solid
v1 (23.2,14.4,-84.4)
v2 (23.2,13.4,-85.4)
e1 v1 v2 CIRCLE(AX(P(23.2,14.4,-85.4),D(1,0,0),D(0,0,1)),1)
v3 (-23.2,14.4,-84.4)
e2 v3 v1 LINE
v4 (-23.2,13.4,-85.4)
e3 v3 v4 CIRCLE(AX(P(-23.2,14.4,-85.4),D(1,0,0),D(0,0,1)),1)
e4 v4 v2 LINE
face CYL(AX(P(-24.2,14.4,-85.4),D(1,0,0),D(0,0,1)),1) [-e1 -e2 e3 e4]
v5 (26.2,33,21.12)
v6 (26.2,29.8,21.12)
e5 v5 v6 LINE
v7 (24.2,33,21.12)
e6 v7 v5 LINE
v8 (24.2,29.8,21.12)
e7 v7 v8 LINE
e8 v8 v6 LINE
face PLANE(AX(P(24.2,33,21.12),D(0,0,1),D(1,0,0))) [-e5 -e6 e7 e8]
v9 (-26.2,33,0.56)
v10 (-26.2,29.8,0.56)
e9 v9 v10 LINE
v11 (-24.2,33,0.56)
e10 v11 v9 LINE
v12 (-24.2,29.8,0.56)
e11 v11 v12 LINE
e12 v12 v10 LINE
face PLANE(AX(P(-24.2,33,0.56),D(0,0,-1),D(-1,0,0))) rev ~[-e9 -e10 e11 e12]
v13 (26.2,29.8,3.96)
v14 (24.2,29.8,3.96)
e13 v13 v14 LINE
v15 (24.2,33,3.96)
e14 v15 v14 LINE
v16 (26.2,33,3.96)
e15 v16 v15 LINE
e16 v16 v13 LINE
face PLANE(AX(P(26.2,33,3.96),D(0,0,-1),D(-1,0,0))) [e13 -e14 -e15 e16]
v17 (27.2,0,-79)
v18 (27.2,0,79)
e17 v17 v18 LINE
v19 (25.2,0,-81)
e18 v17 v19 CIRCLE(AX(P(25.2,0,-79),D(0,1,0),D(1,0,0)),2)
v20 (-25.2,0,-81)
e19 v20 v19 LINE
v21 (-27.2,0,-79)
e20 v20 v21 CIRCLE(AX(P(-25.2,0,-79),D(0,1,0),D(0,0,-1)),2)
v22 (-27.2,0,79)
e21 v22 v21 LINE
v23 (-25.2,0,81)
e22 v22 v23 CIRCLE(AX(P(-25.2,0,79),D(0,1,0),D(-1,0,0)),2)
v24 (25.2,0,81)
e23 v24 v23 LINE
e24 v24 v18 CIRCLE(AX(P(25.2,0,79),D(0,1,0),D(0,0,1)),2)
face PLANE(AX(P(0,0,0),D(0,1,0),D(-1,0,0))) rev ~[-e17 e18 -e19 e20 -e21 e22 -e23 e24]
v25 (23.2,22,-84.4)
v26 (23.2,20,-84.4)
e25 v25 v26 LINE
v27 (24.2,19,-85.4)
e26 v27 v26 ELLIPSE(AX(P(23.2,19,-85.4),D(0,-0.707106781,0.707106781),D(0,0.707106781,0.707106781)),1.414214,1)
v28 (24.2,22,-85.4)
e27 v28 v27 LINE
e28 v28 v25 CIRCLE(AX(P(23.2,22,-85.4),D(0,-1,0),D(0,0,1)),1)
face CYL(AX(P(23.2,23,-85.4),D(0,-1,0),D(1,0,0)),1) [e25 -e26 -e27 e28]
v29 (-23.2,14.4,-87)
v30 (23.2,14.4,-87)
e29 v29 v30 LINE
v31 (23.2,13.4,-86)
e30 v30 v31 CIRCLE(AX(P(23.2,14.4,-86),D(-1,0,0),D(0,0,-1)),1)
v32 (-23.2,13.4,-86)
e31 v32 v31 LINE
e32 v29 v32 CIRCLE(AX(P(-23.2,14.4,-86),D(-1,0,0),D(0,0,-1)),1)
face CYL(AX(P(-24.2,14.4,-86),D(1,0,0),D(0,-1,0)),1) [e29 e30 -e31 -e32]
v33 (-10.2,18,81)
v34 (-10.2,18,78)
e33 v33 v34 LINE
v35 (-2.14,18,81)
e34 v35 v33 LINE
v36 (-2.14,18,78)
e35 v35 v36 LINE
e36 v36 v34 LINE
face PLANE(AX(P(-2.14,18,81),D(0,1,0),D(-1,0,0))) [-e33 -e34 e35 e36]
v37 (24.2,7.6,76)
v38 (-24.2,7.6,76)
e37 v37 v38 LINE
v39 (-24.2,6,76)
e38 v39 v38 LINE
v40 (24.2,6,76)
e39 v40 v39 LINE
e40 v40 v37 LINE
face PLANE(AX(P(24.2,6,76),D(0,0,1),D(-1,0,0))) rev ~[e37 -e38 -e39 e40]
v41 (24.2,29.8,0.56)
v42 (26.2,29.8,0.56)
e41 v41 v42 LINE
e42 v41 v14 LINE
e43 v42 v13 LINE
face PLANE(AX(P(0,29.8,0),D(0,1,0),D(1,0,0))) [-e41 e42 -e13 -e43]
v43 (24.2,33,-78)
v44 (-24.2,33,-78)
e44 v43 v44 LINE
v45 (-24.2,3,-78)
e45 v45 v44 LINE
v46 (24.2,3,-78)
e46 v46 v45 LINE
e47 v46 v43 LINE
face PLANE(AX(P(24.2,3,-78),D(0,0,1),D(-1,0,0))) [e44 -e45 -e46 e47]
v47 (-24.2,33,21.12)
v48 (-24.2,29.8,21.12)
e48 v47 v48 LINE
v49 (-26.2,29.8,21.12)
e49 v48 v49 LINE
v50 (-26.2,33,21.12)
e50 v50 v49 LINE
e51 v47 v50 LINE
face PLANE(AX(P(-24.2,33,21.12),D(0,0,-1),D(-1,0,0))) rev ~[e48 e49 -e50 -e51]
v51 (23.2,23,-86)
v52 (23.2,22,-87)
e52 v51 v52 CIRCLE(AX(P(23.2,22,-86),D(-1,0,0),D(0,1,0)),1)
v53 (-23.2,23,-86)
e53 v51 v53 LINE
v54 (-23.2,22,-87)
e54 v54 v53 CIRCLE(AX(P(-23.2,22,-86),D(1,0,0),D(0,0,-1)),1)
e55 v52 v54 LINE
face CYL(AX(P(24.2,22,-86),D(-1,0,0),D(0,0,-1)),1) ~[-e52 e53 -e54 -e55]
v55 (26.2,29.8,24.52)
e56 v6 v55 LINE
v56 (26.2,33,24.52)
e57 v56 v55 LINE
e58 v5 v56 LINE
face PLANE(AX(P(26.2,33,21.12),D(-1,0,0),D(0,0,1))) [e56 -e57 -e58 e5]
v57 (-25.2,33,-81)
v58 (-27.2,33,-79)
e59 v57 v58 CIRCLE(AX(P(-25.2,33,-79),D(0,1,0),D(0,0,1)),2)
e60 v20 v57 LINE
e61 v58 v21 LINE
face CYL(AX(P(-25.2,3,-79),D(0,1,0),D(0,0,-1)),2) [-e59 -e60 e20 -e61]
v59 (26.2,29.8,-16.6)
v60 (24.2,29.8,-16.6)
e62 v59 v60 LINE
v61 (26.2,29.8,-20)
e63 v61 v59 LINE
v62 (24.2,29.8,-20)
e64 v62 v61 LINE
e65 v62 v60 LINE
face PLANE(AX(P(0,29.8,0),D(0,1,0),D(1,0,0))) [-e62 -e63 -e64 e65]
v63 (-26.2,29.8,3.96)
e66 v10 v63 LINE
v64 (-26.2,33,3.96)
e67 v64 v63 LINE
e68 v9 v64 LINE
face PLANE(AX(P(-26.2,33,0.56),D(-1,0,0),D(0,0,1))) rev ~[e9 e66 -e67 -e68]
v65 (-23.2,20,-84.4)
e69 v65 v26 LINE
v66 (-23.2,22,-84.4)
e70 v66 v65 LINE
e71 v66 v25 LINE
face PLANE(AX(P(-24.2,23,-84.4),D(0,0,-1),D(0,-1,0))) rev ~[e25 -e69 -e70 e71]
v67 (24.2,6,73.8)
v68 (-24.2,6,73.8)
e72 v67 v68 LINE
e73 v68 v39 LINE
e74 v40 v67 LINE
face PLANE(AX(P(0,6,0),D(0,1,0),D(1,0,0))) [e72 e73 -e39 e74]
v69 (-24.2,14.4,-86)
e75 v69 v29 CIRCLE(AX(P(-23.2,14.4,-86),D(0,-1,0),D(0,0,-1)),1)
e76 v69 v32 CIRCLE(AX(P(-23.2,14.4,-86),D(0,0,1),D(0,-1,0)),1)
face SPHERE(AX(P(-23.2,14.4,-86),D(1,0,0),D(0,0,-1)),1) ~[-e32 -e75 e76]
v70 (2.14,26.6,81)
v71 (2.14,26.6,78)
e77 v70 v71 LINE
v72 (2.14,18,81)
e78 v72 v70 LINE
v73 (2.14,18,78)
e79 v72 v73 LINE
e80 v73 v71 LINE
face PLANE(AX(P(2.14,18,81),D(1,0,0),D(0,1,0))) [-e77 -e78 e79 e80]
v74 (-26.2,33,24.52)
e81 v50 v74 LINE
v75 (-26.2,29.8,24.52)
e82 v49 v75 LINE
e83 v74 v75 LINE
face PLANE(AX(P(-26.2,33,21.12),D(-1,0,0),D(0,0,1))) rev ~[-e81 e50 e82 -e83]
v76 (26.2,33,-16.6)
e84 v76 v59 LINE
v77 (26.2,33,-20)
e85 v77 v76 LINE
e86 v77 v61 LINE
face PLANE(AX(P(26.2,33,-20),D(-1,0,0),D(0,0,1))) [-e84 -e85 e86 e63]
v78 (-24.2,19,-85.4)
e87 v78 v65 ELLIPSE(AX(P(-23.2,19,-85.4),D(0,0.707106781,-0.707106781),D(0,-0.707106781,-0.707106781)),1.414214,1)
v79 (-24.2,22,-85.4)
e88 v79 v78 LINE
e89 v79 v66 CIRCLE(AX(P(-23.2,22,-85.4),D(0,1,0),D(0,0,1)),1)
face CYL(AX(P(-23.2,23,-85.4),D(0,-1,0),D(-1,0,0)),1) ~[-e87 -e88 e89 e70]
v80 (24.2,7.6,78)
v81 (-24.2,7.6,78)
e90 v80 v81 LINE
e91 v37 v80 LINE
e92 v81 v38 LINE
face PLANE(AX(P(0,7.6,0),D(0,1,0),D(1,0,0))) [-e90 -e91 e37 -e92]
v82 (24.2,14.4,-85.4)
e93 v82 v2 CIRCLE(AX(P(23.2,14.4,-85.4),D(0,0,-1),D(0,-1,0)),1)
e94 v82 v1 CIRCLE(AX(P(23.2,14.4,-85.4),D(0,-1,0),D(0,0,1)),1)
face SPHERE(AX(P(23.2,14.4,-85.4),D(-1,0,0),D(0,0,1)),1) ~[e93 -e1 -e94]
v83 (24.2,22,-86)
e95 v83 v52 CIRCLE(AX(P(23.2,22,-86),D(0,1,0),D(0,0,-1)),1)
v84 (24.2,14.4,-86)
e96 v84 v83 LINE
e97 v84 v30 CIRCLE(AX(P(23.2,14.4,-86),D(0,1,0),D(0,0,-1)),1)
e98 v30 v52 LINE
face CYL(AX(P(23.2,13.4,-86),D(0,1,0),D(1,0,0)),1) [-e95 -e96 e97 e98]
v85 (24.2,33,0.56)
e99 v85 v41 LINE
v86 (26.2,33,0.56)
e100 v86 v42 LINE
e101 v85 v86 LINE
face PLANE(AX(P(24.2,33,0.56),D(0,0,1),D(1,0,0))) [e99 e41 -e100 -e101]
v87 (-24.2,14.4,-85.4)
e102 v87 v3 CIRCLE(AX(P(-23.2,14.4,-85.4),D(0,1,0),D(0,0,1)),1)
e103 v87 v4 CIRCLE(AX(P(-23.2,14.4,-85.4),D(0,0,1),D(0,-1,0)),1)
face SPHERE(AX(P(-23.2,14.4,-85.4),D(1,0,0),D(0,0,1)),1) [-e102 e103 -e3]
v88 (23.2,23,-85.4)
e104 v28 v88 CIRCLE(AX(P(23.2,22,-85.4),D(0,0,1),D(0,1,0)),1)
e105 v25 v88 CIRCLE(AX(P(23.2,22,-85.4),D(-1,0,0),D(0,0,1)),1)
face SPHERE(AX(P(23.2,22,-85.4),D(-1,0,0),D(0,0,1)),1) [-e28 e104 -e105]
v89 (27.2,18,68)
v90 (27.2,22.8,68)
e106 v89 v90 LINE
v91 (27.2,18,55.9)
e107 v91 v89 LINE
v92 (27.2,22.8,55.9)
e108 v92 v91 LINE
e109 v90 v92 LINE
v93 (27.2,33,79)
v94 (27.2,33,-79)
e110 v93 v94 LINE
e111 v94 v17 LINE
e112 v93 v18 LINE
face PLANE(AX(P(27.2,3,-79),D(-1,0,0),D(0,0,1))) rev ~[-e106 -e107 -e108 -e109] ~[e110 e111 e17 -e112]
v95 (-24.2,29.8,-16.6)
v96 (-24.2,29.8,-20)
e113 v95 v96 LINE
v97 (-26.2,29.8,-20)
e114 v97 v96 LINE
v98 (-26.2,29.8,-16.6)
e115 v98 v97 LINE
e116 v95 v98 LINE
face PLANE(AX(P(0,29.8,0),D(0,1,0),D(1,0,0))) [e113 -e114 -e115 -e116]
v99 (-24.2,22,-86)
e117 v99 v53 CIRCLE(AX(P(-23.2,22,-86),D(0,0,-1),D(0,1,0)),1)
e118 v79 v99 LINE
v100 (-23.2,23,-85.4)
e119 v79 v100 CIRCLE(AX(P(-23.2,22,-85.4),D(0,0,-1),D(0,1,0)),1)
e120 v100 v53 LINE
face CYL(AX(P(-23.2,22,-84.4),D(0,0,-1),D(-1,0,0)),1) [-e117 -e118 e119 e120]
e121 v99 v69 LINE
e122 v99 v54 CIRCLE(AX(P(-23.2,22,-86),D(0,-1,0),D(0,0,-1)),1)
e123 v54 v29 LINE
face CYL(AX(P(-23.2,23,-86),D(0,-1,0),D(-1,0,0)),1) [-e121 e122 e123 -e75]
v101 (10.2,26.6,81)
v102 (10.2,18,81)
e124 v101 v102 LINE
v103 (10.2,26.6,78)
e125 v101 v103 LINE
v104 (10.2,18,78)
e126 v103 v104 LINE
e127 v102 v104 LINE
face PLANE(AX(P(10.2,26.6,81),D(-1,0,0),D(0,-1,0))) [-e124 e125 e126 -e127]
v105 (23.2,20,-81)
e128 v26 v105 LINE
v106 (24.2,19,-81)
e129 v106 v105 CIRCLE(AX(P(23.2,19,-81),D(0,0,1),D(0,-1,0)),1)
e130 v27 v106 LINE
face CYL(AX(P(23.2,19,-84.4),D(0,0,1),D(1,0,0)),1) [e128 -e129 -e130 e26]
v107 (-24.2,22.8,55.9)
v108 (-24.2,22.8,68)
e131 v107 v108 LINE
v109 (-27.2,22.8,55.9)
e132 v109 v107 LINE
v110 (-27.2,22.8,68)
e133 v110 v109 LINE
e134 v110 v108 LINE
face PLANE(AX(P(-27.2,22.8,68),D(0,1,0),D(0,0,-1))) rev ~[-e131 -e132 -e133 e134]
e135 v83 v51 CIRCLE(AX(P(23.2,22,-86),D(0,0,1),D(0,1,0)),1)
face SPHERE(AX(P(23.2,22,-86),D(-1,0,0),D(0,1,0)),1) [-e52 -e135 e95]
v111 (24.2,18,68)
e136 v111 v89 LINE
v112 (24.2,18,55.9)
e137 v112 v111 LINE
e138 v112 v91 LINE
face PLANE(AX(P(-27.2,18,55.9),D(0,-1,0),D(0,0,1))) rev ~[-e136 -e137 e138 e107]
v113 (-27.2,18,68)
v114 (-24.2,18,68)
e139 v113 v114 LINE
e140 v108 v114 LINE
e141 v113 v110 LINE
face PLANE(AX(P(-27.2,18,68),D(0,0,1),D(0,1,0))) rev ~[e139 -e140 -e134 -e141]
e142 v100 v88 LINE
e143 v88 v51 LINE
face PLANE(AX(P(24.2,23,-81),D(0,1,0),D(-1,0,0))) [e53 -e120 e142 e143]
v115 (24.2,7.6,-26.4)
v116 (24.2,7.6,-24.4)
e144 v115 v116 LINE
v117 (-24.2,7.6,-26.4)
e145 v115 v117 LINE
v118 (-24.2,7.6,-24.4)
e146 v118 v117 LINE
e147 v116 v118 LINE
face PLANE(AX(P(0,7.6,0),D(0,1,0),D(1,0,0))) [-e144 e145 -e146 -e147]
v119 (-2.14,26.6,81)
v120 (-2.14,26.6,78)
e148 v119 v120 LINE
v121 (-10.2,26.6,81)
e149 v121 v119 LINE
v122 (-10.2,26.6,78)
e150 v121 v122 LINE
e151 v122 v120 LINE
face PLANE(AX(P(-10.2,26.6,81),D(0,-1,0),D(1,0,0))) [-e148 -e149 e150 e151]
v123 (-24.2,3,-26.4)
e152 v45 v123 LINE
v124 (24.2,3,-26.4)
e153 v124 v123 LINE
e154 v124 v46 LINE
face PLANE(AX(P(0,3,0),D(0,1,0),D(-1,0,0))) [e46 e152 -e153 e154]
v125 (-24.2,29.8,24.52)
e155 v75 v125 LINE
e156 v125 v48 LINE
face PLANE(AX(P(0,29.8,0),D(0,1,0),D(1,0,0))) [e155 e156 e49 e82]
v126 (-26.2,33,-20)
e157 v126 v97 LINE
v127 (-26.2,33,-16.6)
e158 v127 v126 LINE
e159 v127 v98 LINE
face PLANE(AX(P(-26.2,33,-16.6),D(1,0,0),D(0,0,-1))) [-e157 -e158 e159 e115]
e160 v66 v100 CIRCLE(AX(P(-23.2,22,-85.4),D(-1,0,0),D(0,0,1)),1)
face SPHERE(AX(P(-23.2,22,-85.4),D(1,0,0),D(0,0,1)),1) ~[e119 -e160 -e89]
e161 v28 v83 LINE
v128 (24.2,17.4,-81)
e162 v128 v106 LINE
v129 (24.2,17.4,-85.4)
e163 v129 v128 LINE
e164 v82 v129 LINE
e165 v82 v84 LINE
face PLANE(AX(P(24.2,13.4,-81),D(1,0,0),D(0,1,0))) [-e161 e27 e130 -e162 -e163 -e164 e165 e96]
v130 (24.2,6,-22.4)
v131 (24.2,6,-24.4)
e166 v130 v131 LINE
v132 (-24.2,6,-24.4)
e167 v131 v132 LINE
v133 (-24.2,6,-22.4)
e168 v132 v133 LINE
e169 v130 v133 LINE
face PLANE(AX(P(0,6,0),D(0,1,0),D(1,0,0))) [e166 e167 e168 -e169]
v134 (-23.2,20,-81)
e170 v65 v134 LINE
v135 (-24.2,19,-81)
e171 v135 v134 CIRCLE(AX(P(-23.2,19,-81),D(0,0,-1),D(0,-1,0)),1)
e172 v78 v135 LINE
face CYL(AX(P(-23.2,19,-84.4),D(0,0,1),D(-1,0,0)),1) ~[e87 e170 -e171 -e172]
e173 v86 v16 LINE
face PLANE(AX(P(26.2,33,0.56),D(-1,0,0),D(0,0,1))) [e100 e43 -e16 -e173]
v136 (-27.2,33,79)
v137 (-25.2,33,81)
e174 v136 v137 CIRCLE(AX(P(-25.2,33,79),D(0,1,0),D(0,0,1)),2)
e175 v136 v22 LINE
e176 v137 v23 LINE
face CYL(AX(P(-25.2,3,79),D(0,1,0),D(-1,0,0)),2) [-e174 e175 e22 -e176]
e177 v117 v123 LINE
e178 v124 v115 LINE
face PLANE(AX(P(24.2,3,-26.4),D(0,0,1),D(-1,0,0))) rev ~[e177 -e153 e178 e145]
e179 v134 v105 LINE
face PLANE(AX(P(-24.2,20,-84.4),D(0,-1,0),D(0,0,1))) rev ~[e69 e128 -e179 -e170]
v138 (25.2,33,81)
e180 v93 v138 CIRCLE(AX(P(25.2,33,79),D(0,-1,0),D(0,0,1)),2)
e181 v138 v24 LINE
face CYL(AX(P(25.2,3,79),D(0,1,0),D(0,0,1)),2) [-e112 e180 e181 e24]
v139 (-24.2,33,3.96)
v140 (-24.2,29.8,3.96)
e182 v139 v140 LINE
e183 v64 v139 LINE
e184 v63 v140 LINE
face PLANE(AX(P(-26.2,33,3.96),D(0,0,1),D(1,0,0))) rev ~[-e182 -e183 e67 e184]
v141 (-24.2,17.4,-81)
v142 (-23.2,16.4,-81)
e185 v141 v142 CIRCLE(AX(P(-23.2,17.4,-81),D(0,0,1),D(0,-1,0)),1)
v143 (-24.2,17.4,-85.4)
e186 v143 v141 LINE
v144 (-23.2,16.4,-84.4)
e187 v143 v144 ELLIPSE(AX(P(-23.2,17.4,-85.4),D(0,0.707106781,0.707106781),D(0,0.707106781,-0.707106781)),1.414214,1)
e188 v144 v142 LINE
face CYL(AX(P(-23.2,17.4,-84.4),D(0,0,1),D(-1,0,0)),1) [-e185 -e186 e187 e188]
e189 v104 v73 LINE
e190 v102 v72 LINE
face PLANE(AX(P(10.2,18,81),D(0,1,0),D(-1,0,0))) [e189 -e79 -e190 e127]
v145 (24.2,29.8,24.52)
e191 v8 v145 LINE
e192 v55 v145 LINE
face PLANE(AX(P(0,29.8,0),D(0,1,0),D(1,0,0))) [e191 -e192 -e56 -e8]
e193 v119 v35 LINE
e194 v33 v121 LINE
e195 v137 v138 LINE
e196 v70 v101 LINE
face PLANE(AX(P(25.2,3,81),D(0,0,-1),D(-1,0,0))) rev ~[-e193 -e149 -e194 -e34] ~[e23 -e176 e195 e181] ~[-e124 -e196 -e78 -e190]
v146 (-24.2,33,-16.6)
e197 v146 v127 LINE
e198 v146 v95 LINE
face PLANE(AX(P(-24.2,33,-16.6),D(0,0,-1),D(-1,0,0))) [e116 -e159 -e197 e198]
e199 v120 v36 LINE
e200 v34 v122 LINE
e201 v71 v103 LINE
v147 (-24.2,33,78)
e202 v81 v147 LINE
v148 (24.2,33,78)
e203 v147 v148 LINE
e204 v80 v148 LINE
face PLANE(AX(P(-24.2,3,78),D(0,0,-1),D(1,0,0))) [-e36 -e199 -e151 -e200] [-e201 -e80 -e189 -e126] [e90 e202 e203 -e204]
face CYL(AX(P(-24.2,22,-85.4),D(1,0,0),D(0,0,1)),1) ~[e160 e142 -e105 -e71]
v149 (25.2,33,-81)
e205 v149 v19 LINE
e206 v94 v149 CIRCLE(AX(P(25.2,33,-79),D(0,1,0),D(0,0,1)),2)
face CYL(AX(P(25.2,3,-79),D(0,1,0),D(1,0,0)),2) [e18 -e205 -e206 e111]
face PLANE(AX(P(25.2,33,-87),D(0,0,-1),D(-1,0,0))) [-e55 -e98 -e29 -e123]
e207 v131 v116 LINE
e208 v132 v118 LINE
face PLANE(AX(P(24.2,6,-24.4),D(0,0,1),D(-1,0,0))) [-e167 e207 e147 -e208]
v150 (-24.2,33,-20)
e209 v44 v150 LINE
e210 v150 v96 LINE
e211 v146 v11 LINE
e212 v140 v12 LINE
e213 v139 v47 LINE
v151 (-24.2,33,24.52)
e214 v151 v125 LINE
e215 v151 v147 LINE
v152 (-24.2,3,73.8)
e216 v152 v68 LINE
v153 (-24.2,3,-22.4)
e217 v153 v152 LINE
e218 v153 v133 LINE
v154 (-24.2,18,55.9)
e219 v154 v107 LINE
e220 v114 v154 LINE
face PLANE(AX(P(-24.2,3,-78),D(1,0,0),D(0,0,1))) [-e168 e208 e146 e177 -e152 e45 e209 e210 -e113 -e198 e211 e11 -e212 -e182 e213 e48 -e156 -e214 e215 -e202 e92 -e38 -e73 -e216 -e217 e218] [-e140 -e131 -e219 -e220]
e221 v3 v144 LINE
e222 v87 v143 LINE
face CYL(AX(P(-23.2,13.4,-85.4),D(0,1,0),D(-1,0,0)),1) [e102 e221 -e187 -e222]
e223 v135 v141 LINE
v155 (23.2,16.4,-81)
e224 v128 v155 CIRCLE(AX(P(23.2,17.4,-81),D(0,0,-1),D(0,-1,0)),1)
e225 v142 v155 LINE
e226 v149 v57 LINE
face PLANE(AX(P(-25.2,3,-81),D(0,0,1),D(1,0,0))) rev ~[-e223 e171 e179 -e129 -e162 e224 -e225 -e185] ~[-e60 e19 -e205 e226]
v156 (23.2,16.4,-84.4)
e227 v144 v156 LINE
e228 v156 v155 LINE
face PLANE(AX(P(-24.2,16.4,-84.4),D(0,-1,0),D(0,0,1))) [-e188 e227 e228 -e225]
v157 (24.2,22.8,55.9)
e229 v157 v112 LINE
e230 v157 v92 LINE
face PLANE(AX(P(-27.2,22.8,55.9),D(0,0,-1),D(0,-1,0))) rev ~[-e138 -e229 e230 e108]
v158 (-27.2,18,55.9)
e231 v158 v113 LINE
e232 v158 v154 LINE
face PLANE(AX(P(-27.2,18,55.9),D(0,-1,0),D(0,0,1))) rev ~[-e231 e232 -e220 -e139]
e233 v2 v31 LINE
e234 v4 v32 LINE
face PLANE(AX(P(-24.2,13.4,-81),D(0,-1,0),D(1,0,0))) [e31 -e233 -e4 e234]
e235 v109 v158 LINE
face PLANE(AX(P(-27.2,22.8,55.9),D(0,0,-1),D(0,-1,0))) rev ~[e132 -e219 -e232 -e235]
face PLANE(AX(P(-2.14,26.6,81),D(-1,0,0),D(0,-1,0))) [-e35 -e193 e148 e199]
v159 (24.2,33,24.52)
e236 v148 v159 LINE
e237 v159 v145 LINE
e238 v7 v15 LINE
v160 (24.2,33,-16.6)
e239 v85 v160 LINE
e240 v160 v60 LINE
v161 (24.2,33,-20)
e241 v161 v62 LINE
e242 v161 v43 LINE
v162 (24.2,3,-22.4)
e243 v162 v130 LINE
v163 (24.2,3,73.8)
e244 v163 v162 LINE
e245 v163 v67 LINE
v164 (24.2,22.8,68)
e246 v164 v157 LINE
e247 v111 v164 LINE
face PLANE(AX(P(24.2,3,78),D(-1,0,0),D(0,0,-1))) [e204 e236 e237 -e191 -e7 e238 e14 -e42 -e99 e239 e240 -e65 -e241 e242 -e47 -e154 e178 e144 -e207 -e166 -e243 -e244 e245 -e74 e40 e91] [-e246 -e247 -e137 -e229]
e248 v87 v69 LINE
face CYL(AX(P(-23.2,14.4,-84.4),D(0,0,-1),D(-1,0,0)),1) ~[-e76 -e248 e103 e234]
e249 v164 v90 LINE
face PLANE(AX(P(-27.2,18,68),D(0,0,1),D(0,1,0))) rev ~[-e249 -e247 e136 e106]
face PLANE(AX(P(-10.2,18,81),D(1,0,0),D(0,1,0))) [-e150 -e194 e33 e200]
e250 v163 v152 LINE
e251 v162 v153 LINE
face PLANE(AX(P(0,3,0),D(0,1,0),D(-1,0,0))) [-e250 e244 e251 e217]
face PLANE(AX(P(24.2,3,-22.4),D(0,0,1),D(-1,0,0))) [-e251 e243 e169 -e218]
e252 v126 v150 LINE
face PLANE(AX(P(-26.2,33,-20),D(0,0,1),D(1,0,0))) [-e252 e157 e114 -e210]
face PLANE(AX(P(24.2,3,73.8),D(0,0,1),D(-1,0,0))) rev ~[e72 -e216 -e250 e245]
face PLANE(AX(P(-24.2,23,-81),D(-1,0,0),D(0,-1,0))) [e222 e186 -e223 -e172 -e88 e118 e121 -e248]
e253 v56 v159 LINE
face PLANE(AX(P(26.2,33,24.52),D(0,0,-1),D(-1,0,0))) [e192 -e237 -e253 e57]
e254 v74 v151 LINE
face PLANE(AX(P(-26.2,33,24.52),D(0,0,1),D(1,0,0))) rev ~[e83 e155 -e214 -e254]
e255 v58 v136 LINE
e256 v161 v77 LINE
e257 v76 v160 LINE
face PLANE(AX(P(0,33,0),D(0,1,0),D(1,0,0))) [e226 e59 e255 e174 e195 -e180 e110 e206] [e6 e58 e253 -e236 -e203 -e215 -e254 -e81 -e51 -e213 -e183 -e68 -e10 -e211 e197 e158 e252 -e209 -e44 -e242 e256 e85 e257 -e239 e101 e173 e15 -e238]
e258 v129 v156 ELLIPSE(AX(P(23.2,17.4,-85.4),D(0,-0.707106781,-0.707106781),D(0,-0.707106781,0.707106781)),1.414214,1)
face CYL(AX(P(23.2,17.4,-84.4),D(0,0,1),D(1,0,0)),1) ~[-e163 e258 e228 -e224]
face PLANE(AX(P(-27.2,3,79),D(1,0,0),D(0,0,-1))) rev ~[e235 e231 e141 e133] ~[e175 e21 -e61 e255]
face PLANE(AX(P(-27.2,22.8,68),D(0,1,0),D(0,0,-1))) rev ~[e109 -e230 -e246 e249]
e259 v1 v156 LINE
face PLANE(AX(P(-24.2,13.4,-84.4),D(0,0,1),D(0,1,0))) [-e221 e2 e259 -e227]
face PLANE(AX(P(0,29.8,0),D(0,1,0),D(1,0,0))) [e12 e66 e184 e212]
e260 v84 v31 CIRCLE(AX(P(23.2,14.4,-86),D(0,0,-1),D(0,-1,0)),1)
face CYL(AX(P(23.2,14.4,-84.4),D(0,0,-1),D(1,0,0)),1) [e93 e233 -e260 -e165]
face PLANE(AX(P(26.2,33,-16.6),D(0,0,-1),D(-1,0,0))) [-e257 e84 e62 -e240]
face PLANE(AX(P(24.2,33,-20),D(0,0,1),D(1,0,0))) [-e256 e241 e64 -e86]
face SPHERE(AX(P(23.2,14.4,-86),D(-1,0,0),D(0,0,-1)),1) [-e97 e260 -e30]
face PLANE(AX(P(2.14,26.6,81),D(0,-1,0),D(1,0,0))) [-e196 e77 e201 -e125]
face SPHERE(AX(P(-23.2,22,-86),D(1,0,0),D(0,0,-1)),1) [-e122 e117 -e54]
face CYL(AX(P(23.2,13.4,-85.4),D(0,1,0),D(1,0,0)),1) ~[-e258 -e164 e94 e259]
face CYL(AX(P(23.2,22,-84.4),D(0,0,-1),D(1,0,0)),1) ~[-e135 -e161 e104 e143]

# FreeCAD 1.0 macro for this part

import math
import FreeCAD as App
import Part
import Sketcher

V = App.Vector
Q = App.Units.Quantity


def edges_at(feature, points):
    """Names of the edges that pass closest to the given points."""
    edges = feature.Shape.Edges
    near = lambda p: min(range(len(edges)), key=lambda i: edges[i].distToShape(Part.Vertex(*p))[0])
    return sorted({f"Edge{near(p) + 1}" for p in points})


def add_polygon(sketch, points):
    """Adds a closed chain of lines whose ends are joined by coincident constraints."""
    first, n = sketch.GeometryCount, len(points)
    for a, b in zip(points, points[1:] + points[:1]):
        sketch.addGeometry(Part.LineSegment(App.Vector(*a, 0), App.Vector(*b, 0)), False)
    for i in range(n):
        sketch.addConstraint(Sketcher.Constraint("Coincident", first + i, 2, first + (i + 1) % n, 1))

doc = App.newDocument("Part")
body = doc.addObject("PartDesign::Body", "Body")

sketch1 = doc.addObject("Sketcher::SketchObject", "Sketch")
body.addObject(sketch1)
sketch1.AttachmentSupport = (doc.XZ_Plane, [""])
sketch1.MapMode = "FlatFace"
add_polygon(sketch1, [(30, 84), (30, -84), (-30, -84), (-30, 84)])
sketch1.addConstraint(Sketcher.Constraint("Vertical", 0))
sketch1.addConstraint(Sketcher.Constraint("Horizontal", 1))
sketch1.addConstraint(Sketcher.Constraint("Vertical", 2))
sketch1.addConstraint(Sketcher.Constraint("Horizontal", 3))
sketch1.addConstraint(Sketcher.Constraint("Symmetric", 0, 2, 2, 2, -1, 1))
sketch1.addConstraint(Sketcher.Constraint("DistanceY", 0, 2, 0, 1, Q("168 mm")))
sketch1.addConstraint(Sketcher.Constraint("DistanceX", 1, 2, 1, 1, Q("60.4 mm")))
pad1 = doc.addObject("PartDesign::Pad", "Pad")
body.addObject(pad1)
pad1.Profile = sketch1
pad1.Length = 3
pad1.Reversed = True

sketch2 = doc.addObject("Sketcher::SketchObject", "Sketch001")
body.addObject(sketch2)
sketch2.AttachmentSupport = (doc.XZ_Plane, [""])
sketch2.MapMode = "FlatFace"
sketch2.AttachmentOffset = App.Placement(V(0, 0, -3), App.Rotation())
add_polygon(sketch2, [(27, 81), (27, -81), (-27, -81), (-27, 81)])
add_polygon(sketch2, [(-24, -78), (24, -78), (24, 78), (-24, 78)])
sketch2.addConstraint(Sketcher.Constraint("Vertical", 0))
sketch2.addConstraint(Sketcher.Constraint("Horizontal", 1))
sketch2.addConstraint(Sketcher.Constraint("Vertical", 2))
sketch2.addConstraint(Sketcher.Constraint("Horizontal", 3))
sketch2.addConstraint(Sketcher.Constraint("Horizontal", 4))
sketch2.addConstraint(Sketcher.Constraint("Vertical", 5))
sketch2.addConstraint(Sketcher.Constraint("Horizontal", 6))
sketch2.addConstraint(Sketcher.Constraint("Vertical", 7))
sketch2.addConstraint(Sketcher.Constraint("Symmetric", 0, 2, 2, 2, -1, 1))
sketch2.addConstraint(Sketcher.Constraint("Symmetric", 4, 2, 6, 2, -1, 1))
sketch2.addConstraint(Sketcher.Constraint("DistanceX", 4, 2, 0, 2, Q("3 mm")))
sketch2.addConstraint(Sketcher.Constraint("DistanceY", 0, 2, 4, 2, Q("3 mm")))
sketch2.addConstraint(Sketcher.Constraint("DistanceY", 0, 2, 0, 1, Q("162 mm")))
sketch2.addConstraint(Sketcher.Constraint("DistanceX", 1, 2, 1, 1, Q("54.4 mm")))
pad2 = doc.addObject("PartDesign::Pad", "Pad001")
body.addObject(pad2)
pad2.Profile = sketch2
pad2.Length = 30
pad2.Reversed = True
doc.recompute()

fillet = doc.addObject("PartDesign::Fillet", "Fillet")
body.addObject(fillet)
fillet.Base = (pad2, edges_at(pad2, [
    (27.2, 18, 81),
    (-27.2, 18, 81),
    (-30.2, 1.5, 84),
    (30.2, 1.5, 84),
    (27.2, 18, -81),
    (-27.2, 18, -81),
    (30.2, 1.5, -84),
    (-30.2, 1.5, -84),
]))
fillet.Radius = 2

sketch3 = doc.addObject("Sketcher::SketchObject", "Sketch002")
body.addObject(sketch3)
sketch3.AttachmentSupport = (doc.XZ_Plane, [""])
sketch3.MapMode = "FlatFace"
sketch3.AttachmentOffset = App.Placement(V(0, 0, -3), App.Rotation())
add_polygon(sketch3, [(24.2, -22.4), (24.2, -26.4), (-24.2, -26.4), (-24.2, -22.4)])
add_polygon(sketch3, [(24.2, 78), (24.2, 73.8), (-24.2, 73.8), (-24.2, 78)])
sketch3.addConstraint(Sketcher.Constraint("Vertical", 0))
sketch3.addConstraint(Sketcher.Constraint("Horizontal", 1))
sketch3.addConstraint(Sketcher.Constraint("Vertical", 2))
sketch3.addConstraint(Sketcher.Constraint("Horizontal", 3))
sketch3.addConstraint(Sketcher.Constraint("Vertical", 4))
sketch3.addConstraint(Sketcher.Constraint("Horizontal", 5))
sketch3.addConstraint(Sketcher.Constraint("Vertical", 6))
sketch3.addConstraint(Sketcher.Constraint("Horizontal", 7))
sketch3.addConstraint(Sketcher.Constraint("Vertical", 3, 2, 4, 2))
sketch3.addConstraint(Sketcher.Constraint("Vertical", 2, 2, 5, 2))
sketch3.addConstraint(Sketcher.Constraint("DistanceY", 0, 2, 0, 1, Q("4 mm")))
sketch3.addConstraint(Sketcher.Constraint("DistanceY", 4, 2, 4, 1, Q("4.2 mm")))
sketch3.addConstraint(Sketcher.Constraint("DistanceY", 3, 2, 4, 2, Q("96.2 mm")))
sketch3.addConstraint(Sketcher.Constraint("DistanceX", 1, 2, 1, 1, Q("48.4 mm")))
sketch3.addConstraint(Sketcher.Constraint("DistanceY", -1, 1, 6, 2, Q("78 mm")))
sketch3.addConstraint(Sketcher.Constraint("DistanceX", -1, 1, 0, 2, Q("24.2 mm")))
pad3 = doc.addObject("PartDesign::Pad", "Pad002")
body.addObject(pad3)
pad3.Profile = sketch3
pad3.Length = 3
pad3.Reversed = True

sketch4 = doc.addObject("Sketcher::SketchObject", "Sketch003")
body.addObject(sketch4)
sketch4.AttachmentSupport = (doc.XZ_Plane, [""])
sketch4.MapMode = "FlatFace"
sketch4.AttachmentOffset = App.Placement(V(0, 0, -6), App.Rotation())
add_polygon(sketch4, [(-24.2, -26.4), (-24.2, -24.4), (24.2, -24.4), (24.2, -26.4)])
add_polygon(sketch4, [(-24.2, 76), (-24.2, 78), (24.2, 78), (24.2, 76)])
sketch4.addConstraint(Sketcher.Constraint("Vertical", 0))
sketch4.addConstraint(Sketcher.Constraint("Horizontal", 1))
sketch4.addConstraint(Sketcher.Constraint("Vertical", 2))
sketch4.addConstraint(Sketcher.Constraint("Horizontal", 3))
sketch4.addConstraint(Sketcher.Constraint("Vertical", 4))
sketch4.addConstraint(Sketcher.Constraint("Horizontal", 5))
sketch4.addConstraint(Sketcher.Constraint("Vertical", 6))
sketch4.addConstraint(Sketcher.Constraint("Horizontal", 7))
sketch4.addConstraint(Sketcher.Constraint("Vertical", 3, 2, 4, 2))
sketch4.addConstraint(Sketcher.Constraint("Vertical", 2, 2, 5, 2))
sketch4.addConstraint(Sketcher.Constraint("Equal", 2, 4))
sketch4.addConstraint(Sketcher.Constraint("DistanceY", 0, 1, 0, 2, Q("2 mm")))
sketch4.addConstraint(Sketcher.Constraint("DistanceX", 1, 1, 1, 2, Q("48.4 mm")))
sketch4.addConstraint(Sketcher.Constraint("DistanceY", -1, 1, 4, 2, Q("78 mm")))
sketch4.addConstraint(Sketcher.Constraint("DistanceX", 0, 2, -1, 1, Q("24.2 mm")))
sketch4.addConstraint(Sketcher.Constraint("DistanceY", 0, 2, -1, 1, Q("24.4 mm")))
pad4 = doc.addObject("PartDesign::Pad", "Pad003")
body.addObject(pad4)
pad4.Profile = sketch4
pad4.Length = 1.6
pad4.Reversed = True

sketch5 = doc.addObject("Sketcher::SketchObject", "Sketch004")
body.addObject(sketch5)
sketch5.AttachmentSupport = (doc.XY_Plane, [""])
sketch5.MapMode = "FlatFace"
sketch5.AttachmentOffset = App.Placement(V(0, 0, 81), App.Rotation())
add_polygon(sketch5, [(-2, 27), (-10, 27), (-10, 18), (-2, 18)])
add_polygon(sketch5, [(10, 27), (2, 27), (2, 18), (10, 18)])
sketch5.addConstraint(Sketcher.Constraint("Horizontal", 0))
sketch5.addConstraint(Sketcher.Constraint("Vertical", 1))
sketch5.addConstraint(Sketcher.Constraint("Horizontal", 2))
sketch5.addConstraint(Sketcher.Constraint("Vertical", 3))
sketch5.addConstraint(Sketcher.Constraint("Horizontal", 4))
sketch5.addConstraint(Sketcher.Constraint("Vertical", 5))
sketch5.addConstraint(Sketcher.Constraint("Horizontal", 6))
sketch5.addConstraint(Sketcher.Constraint("Vertical", 7))
sketch5.addConstraint(Sketcher.Constraint("Symmetric", 3, 2, 4, 2, -2))
sketch5.addConstraint(Sketcher.Constraint("Symmetric", 1, 2, 6, 2, -2))
sketch5.addConstraint(Sketcher.Constraint("DistanceY", 1, 2, 1, 1, Q("8.6 mm")))
sketch5.addConstraint(Sketcher.Constraint("DistanceX", 0, 2, 0, 1, Q("8.06 mm")))
sketch5.addConstraint(Sketcher.Constraint("DistanceY", -1, 1, 1, 2, Q("18 mm")))
sketch5.addConstraint(Sketcher.Constraint("DistanceX", 0, 2, -1, 1, Q("10.2 mm")))
pocket1 = doc.addObject("PartDesign::Pocket", "Pocket")
body.addObject(pocket1)
pocket1.Profile = sketch5
pocket1.Length = 3

sketch6 = doc.addObject("Sketcher::SketchObject", "Sketch005")
body.addObject(sketch6)
sketch6.AttachmentSupport = (doc.XZ_Plane, [""])
sketch6.MapMode = "FlatFace"
sketch6.AttachmentOffset = App.Placement(V(0, 0, -3), App.Rotation())
sketch6.addGeometry(Part.LineSegment(V(28.2, -84, 0), V(-28.2, -84, 0)), False)
sketch6.addGeometry(Part.ArcOfCircle(Part.Circle(V(-28.2, -82, 0), V(0, 0, 1), 2), math.radians(180), math.radians(270)), False)
sketch6.addGeometry(Part.LineSegment(V(-30.2, -82, 0), V(-30.2, 82, 0)), False)
sketch6.addGeometry(Part.ArcOfCircle(Part.Circle(V(-28.2, 82, 0), V(0, 0, 1), 2), math.radians(90), math.radians(180)), False)
sketch6.addGeometry(Part.LineSegment(V(-28.2, 84, 0), V(28.2, 84, 0)), False)
sketch6.addGeometry(Part.ArcOfCircle(Part.Circle(V(28.2, 82, 0), V(0, 0, 1), 2), math.radians(0), math.radians(90)), False)
sketch6.addGeometry(Part.LineSegment(V(30.2, 82, 0), V(30.2, -82, 0)), False)
sketch6.addGeometry(Part.ArcOfCircle(Part.Circle(V(28.2, -82, 0), V(0, 0, 1), 2), math.radians(-90), math.radians(0)), False)
sketch6.addGeometry(Part.ArcOfCircle(Part.Circle(V(-25.2, -79, 0), V(0, 0, 1), 2), math.radians(180), math.radians(270)), False)
sketch6.addGeometry(Part.LineSegment(V(-25.2, -81, 0), V(25.2, -81, 0)), False)
sketch6.addGeometry(Part.ArcOfCircle(Part.Circle(V(25.2, -79, 0), V(0, 0, 1), 2), math.radians(-90), math.radians(0)), False)
sketch6.addGeometry(Part.LineSegment(V(27.2, -79, 0), V(27.2, 79, 0)), False)
sketch6.addGeometry(Part.ArcOfCircle(Part.Circle(V(25.2, 79, 0), V(0, 0, 1), 2), math.radians(0), math.radians(90)), False)
sketch6.addGeometry(Part.LineSegment(V(25.2, 81, 0), V(-25.2, 81, 0)), False)
sketch6.addGeometry(Part.ArcOfCircle(Part.Circle(V(-25.2, 79, 0), V(0, 0, 1), 2), math.radians(90), math.radians(180)), False)
sketch6.addGeometry(Part.LineSegment(V(-27.2, 79, 0), V(-27.2, -79, 0)), False)
sketch6.addConstraint(Sketcher.Constraint("Tangent", 0, 2, 1, 2))
sketch6.addConstraint(Sketcher.Constraint("Tangent", 1, 1, 2, 1))
sketch6.addConstraint(Sketcher.Constraint("Tangent", 2, 2, 3, 2))
sketch6.addConstraint(Sketcher.Constraint("Tangent", 3, 1, 4, 1))
sketch6.addConstraint(Sketcher.Constraint("Tangent", 4, 2, 5, 2))
sketch6.addConstraint(Sketcher.Constraint("Tangent", 5, 1, 6, 1))
sketch6.addConstraint(Sketcher.Constraint("Tangent", 6, 2, 7, 2))
sketch6.addConstraint(Sketcher.Constraint("Tangent", 7, 1, 0, 1))
sketch6.addConstraint(Sketcher.Constraint("Tangent", 8, 2, 9, 1))
sketch6.addConstraint(Sketcher.Constraint("Tangent", 9, 2, 10, 1))
sketch6.addConstraint(Sketcher.Constraint("Tangent", 10, 2, 11, 1))
sketch6.addConstraint(Sketcher.Constraint("Tangent", 11, 2, 12, 1))
sketch6.addConstraint(Sketcher.Constraint("Tangent", 12, 2, 13, 1))
sketch6.addConstraint(Sketcher.Constraint("Tangent", 13, 2, 14, 1))
sketch6.addConstraint(Sketcher.Constraint("Tangent", 14, 2, 15, 1))
sketch6.addConstraint(Sketcher.Constraint("Tangent", 15, 2, 8, 1))
sketch6.addConstraint(Sketcher.Constraint("Horizontal", 0))
sketch6.addConstraint(Sketcher.Constraint("Vertical", 2))
sketch6.addConstraint(Sketcher.Constraint("Horizontal", 4))
sketch6.addConstraint(Sketcher.Constraint("Vertical", 6))
sketch6.addConstraint(Sketcher.Constraint("Horizontal", 9))
sketch6.addConstraint(Sketcher.Constraint("Vertical", 11))
sketch6.addConstraint(Sketcher.Constraint("Horizontal", 13))
sketch6.addConstraint(Sketcher.Constraint("Vertical", 15))
sketch6.addConstraint(Sketcher.Constraint("Equal", 1, 3))
sketch6.addConstraint(Sketcher.Constraint("Equal", 3, 5))
sketch6.addConstraint(Sketcher.Constraint("Equal", 5, 7))
sketch6.addConstraint(Sketcher.Constraint("Equal", 7, 8))
sketch6.addConstraint(Sketcher.Constraint("Equal", 8, 10))
sketch6.addConstraint(Sketcher.Constraint("Equal", 10, 12))
sketch6.addConstraint(Sketcher.Constraint("Equal", 12, 14))
sketch6.addConstraint(Sketcher.Constraint("Symmetric", 1, 3, 5, 3, -1, 1))
sketch6.addConstraint(Sketcher.Constraint("Symmetric", 8, 3, 12, 3, -1, 1))
sketch6.addConstraint(Sketcher.Constraint("Radius", 1, Q("2 mm")))
sketch6.addConstraint(Sketcher.Constraint("DistanceY", 2, 1, 2, 2, Q("164 mm")))
sketch6.addConstraint(Sketcher.Constraint("DistanceY", 11, 1, 11, 2, Q("158 mm")))
sketch6.addConstraint(Sketcher.Constraint("DistanceX", 0, 2, 0, 1, Q("56.4 mm")))
sketch6.addConstraint(Sketcher.Constraint("DistanceX", 9, 1, 9, 2, Q("50.4 mm")))
pocket2 = doc.addObject("PartDesign::Pocket", "Pocket001")
body.addObject(pocket2)
pocket2.Profile = sketch6
pocket2.Length = 3
pocket2.Reversed = True

sketch7 = doc.addObject("Sketcher::SketchObject", "Sketch006")
body.addObject(sketch7)
sketch7.AttachmentSupport = (doc.XY_Plane, [""])
sketch7.MapMode = "FlatFace"
sketch7.AttachmentOffset = App.Placement(V(0, 0, -81), App.Rotation())
add_polygon(sketch7, [(-24, 23), (24, 23), (24, 13), (-24, 13)])
sketch7.addConstraint(Sketcher.Constraint("Horizontal", 0))
sketch7.addConstraint(Sketcher.Constraint("Vertical", 1))
sketch7.addConstraint(Sketcher.Constraint("Horizontal", 2))
sketch7.addConstraint(Sketcher.Constraint("Vertical", 3))
sketch7.addConstraint(Sketcher.Constraint("DistanceY", 1, 2, 1, 1, Q("9.6 mm")))
sketch7.addConstraint(Sketcher.Constraint("DistanceY", -1, 1, 0, 2, Q("23 mm")))
sketch7.addConstraint(Sketcher.Constraint("DistanceX", 0, 1, 0, 2, Q("48.4 mm")))
sketch7.addConstraint(Sketcher.Constraint("DistanceX", -1, 1, 0, 2, Q("24.2 mm")))
pad5 = doc.addObject("PartDesign::Pad", "Pad004")
body.addObject(pad5)
pad5.Profile = sketch7
pad5.Length = 6
pad5.Reversed = True

sketch8 = doc.addObject("Sketcher::SketchObject", "Sketch007")
body.addObject(sketch8)
sketch8.AttachmentSupport = (doc.YZ_Plane, [""])
sketch8.MapMode = "FlatFace"
sketch8.AttachmentOffset = App.Placement(V(0, 0, -24.2), App.Rotation())
add_polygon(sketch8, [(20, -81), (23, -81), (23, -84.4), (20, -84.4)])
add_polygon(sketch8, [(13.4, -81), (16.4, -81), (16.4, -84.4), (13.4, -84.4)])
sketch8.addConstraint(Sketcher.Constraint("Horizontal", 0))
sketch8.addConstraint(Sketcher.Constraint("Vertical", 1))
sketch8.addConstraint(Sketcher.Constraint("Horizontal", 2))
sketch8.addConstraint(Sketcher.Constraint("Vertical", 3))
sketch8.addConstraint(Sketcher.Constraint("Horizontal", 4))
sketch8.addConstraint(Sketcher.Constraint("Vertical", 5))
sketch8.addConstraint(Sketcher.Constraint("Horizontal", 6))
sketch8.addConstraint(Sketcher.Constraint("Vertical", 7))
sketch8.addConstraint(Sketcher.Constraint("Horizontal", 3, 2, 4, 2))
sketch8.addConstraint(Sketcher.Constraint("Horizontal", 2, 2, 5, 2))
sketch8.addConstraint(Sketcher.Constraint("Equal", 2, 4))
sketch8.addConstraint(Sketcher.Constraint("DistanceX", 0, 1, 0, 2, Q("3 mm")))
sketch8.addConstraint(Sketcher.Constraint("DistanceY", 1, 2, 1, 1, Q("3.4 mm")))
sketch8.addConstraint(Sketcher.Constraint("DistanceX", -1, 1, 0, 2, Q("23 mm")))
sketch8.addConstraint(Sketcher.Constraint("DistanceY", 0, 2, -1, 1, Q("81 mm")))
sketch8.addConstraint(Sketcher.Constraint("DistanceX", -1, 1, 4, 2, Q("16.4 mm")))
pocket3 = doc.addObject("PartDesign::Pocket", "Pocket002")
body.addObject(pocket3)
pocket3.Profile = sketch8
pocket3.Length = 48.4
pocket3.Reversed = True
doc.recompute()

fillet2 = doc.addObject("PartDesign::Fillet", "Fillet001")
body.addObject(fillet2)
fillet2.Base = (pocket3, edges_at(pocket3, [
    (0, 23, -87),
    (0, 23, -84.4),
    (0, 13.4, -87),
    (0, 13.4, -84.4),
    (-24.2, 14.9, -84.4),
    (-24.2, 18.2, -87),
    (-24.2, 21.5, -84.4),
    (-24.2, 23, -85.7),
    (-24.2, 13.4, -85.7),
    (-24.2, 16.4, -82.7),
    (-24.2, 20, -82.7),
    (24.2, 20, -82.7),
    (24.2, 16.4, -82.7),
    (24.2, 14.9, -84.4),
    (24.2, 21.5, -84.4),
    (24.2, 23, -85.7),
    (24.2, 18.2, -87),
    (24.2, 13.4, -85.7),
]))
fillet2.Radius = 1

sketch9 = doc.addObject("Sketcher::SketchObject", "Sketch008")
body.addObject(sketch9)
sketch9.AttachmentSupport = (doc.YZ_Plane, [""])
sketch9.MapMode = "FlatFace"
sketch9.AttachmentOffset = App.Placement(V(0, 0, -27.2), App.Rotation())
add_polygon(sketch9, [(18, 68), (22.8, 68), (22.8, 55.9), (18, 55.9)])
sketch9.addConstraint(Sketcher.Constraint("Horizontal", 0))
sketch9.addConstraint(Sketcher.Constraint("Vertical", 1))
sketch9.addConstraint(Sketcher.Constraint("Horizontal", 2))
sketch9.addConstraint(Sketcher.Constraint("Vertical", 3))
sketch9.addConstraint(Sketcher.Constraint("DistanceX", 0, 1, 0, 2, Q("4.8 mm")))
sketch9.addConstraint(Sketcher.Constraint("DistanceY", 1, 2, 1, 1, Q("12.1 mm")))
sketch9.addConstraint(Sketcher.Constraint("DistanceX", -1, 1, 2, 2, Q("18 mm")))
sketch9.addConstraint(Sketcher.Constraint("DistanceY", -1, 1, 0, 2, Q("68 mm")))
pocket4 = doc.addObject("PartDesign::Pocket", "Pocket003")
body.addObject(pocket4)
pocket4.Profile = sketch9
pocket4.Type = "ThroughAll"
pocket4.Reversed = True

sketch10 = doc.addObject("Sketcher::SketchObject", "Sketch009")
body.addObject(sketch10)
sketch10.AttachmentSupport = (doc.XZ_Plane, [""])
sketch10.MapMode = "FlatFace"
sketch10.AttachmentOffset = App.Placement(V(0, 0, -33), App.Rotation())
add_polygon(sketch10, [(26.2, -20), (24.2, -20), (24.2, -16.6), (26.2, -16.6)])
add_polygon(sketch10, [(26.2, 0.6), (24.2, 0.6), (24.2, 4), (26.2, 4)])
add_polygon(sketch10, [(-24.2, -16.6), (-24.2, -20), (-26.2, -20), (-26.2, -16.6)])
add_polygon(sketch10, [(26.2, 21.1), (24.2, 21.1), (24.2, 24.5), (26.2, 24.5)])
add_polygon(sketch10, [(-24.2, 4), (-24.2, 0.6), (-26.2, 0.6), (-26.2, 4)])
add_polygon(sketch10, [(-24.2, 24.5), (-24.2, 21.1), (-26.2, 21.1), (-26.2, 24.5)])
sketch10.addConstraint(Sketcher.Constraint("Horizontal", 0))
sketch10.addConstraint(Sketcher.Constraint("Vertical", 1))
sketch10.addConstraint(Sketcher.Constraint("Horizontal", 2))
sketch10.addConstraint(Sketcher.Constraint("Vertical", 3))
sketch10.addConstraint(Sketcher.Constraint("Horizontal", 4))
sketch10.addConstraint(Sketcher.Constraint("Vertical", 5))
sketch10.addConstraint(Sketcher.Constraint("Horizontal", 6))
sketch10.addConstraint(Sketcher.Constraint("Vertical", 7))
sketch10.addConstraint(Sketcher.Constraint("Vertical", 8))
sketch10.addConstraint(Sketcher.Constraint("Horizontal", 9))
sketch10.addConstraint(Sketcher.Constraint("Vertical", 10))
sketch10.addConstraint(Sketcher.Constraint("Horizontal", 11))
sketch10.addConstraint(Sketcher.Constraint("Horizontal", 12))
sketch10.addConstraint(Sketcher.Constraint("Vertical", 13))
sketch10.addConstraint(Sketcher.Constraint("Horizontal", 14))
sketch10.addConstraint(Sketcher.Constraint("Vertical", 15))
sketch10.addConstraint(Sketcher.Constraint("Vertical", 16))
sketch10.addConstraint(Sketcher.Constraint("Horizontal", 17))
sketch10.addConstraint(Sketcher.Constraint("Vertical", 18))
sketch10.addConstraint(Sketcher.Constraint("Horizontal", 19))
sketch10.addConstraint(Sketcher.Constraint("Vertical", 20))
sketch10.addConstraint(Sketcher.Constraint("Horizontal", 21))
sketch10.addConstraint(Sketcher.Constraint("Vertical", 22))
sketch10.addConstraint(Sketcher.Constraint("Horizontal", 23))
sketch10.addConstraint(Sketcher.Constraint("Symmetric", 0, 2, 8, 2, -2))
sketch10.addConstraint(Sketcher.Constraint("Symmetric", 2, 2, 10, 2, -2))
sketch10.addConstraint(Sketcher.Constraint("Symmetric", 4, 2, 16, 2, -2))
sketch10.addConstraint(Sketcher.Constraint("Symmetric", 6, 2, 18, 2, -2))
sketch10.addConstraint(Sketcher.Constraint("Symmetric", 12, 2, 20, 2, -2))
sketch10.addConstraint(Sketcher.Constraint("Symmetric", 14, 2, 22, 2, -2))
sketch10.addConstraint(Sketcher.Constraint("Vertical", 1, 2, 4, 2))
sketch10.addConstraint(Sketcher.Constraint("Vertical", 3, 2, 6, 2))
sketch10.addConstraint(Sketcher.Constraint("Vertical", 5, 2, 12, 2))
sketch10.addConstraint(Sketcher.Constraint("Vertical", 7, 2, 14, 2))
sketch10.addConstraint(Sketcher.Constraint("Equal", 3, 5))
sketch10.addConstraint(Sketcher.Constraint("Equal", 10, 13))
sketch10.addConstraint(Sketcher.Constraint("DistanceX", 0, 2, 0, 1, Q("2 mm")))
sketch10.addConstraint(Sketcher.Constraint("DistanceY", 1, 1, 1, 2, Q("3.4 mm")))
sketch10.addConstraint(Sketcher.Constraint("DistanceY", 0, 2, 4, 2, Q("20.56 mm")))
sketch10.addConstraint(Sketcher.Constraint("DistanceY", 4, 2, 12, 2, Q("20.56 mm")))
sketch10.addConstraint(Sketcher.Constraint("DistanceY", 0, 2, -1, 1, Q("20 mm")))
sketch10.addConstraint(Sketcher.Constraint("DistanceX", -1, 1, 0, 2, Q("24.2 mm")))
pocket5 = doc.addObject("PartDesign::Pocket", "Pocket004")
body.addObject(pocket5)
pocket5.Profile = sketch10
pocket5.Length = 3.2
pocket5.Reversed = True

doc.recompute()
